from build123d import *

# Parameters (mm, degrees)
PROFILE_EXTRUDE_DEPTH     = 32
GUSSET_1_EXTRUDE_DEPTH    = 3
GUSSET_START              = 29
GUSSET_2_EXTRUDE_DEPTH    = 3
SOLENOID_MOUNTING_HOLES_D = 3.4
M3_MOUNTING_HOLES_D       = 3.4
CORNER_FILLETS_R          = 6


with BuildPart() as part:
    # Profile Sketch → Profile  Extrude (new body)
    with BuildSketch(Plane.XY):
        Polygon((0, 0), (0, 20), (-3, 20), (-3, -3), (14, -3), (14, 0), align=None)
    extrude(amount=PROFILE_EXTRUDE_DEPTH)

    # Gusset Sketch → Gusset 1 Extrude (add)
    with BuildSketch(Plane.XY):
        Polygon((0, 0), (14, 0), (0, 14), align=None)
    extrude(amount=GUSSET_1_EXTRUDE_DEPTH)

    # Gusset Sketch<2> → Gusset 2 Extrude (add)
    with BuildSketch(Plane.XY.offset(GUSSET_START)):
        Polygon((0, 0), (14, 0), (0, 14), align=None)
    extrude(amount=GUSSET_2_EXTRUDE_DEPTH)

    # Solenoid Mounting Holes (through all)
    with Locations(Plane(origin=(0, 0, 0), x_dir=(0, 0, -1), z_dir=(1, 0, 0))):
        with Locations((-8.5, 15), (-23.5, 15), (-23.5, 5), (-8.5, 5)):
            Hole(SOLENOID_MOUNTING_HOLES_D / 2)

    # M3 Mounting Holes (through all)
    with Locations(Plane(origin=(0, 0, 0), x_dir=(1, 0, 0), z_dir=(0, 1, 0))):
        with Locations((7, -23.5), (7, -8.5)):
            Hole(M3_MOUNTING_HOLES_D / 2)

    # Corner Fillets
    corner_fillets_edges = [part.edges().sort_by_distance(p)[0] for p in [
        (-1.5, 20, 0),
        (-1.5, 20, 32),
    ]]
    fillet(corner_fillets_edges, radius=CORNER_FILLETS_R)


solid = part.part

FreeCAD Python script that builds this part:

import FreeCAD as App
import Part
import Sketcher
Q = App.Units.Quantity


def edges_at(feature, points):
    """Names of the edges that pass closest to the given points."""
    edges = feature.Shape.Edges
    near = lambda p: min(range(len(edges)), key=lambda i: edges[i].distToShape(Part.Vertex(*p))[0])
    return sorted({f"Edge{near(p) + 1}" for p in points})


def add_polygon(sketch, points):
    """Adds a closed chain of lines whose ends are joined by coincident constraints."""
    first, n = sketch.GeometryCount, len(points)
    for a, b in zip(points, points[1:] + points[:1]):
        sketch.addGeometry(Part.LineSegment(App.Vector(*a, 0), App.Vector(*b, 0)), False)
    for i in range(n):
        sketch.addConstraint(Sketcher.Constraint("Coincident", first + i, 2, first + (i + 1) % n, 1))

doc = App.newDocument("Part")
params = doc.addObject("Spreadsheet::Sheet", "Params")
for row, (alias, value) in enumerate([
    ("sketch1_width", "3 mm"),
    ("sketch1_width2", "17 mm"),
    ("sketch1_height", "20 mm"),
    ("pad1_length", "32 mm"),
    ("sketch2_width", "14 mm"),
    ("pad2_length", "3 mm"),
    ("sketch3_width", "14 mm"),
    ("pad3_length", "3 mm"),
    ("sketch4_diameter", "3.4 mm"),
    ("hole_diameter", "3.4 mm"),
    ("sketch5_diameter", "3.4 mm"),
    ("hole2_diameter", "3.4 mm"),
    ("fillet_radius", "6 mm"),
], start=1):
    params.set(f"A{row}", alias)
    params.set(f"B{row}", "=" + value)
    params.setAlias(f"B{row}", alias)

body = doc.addObject("PartDesign::Body", "Body")

sketch1 = doc.addObject("Sketcher::SketchObject", "Sketch")
body.addObject(sketch1)
sketch1.AttachmentSupport = (doc.XY_Plane, [""])
sketch1.MapMode = "FlatFace"
add_polygon(sketch1, [(0, 0), (0, 20), (-3, 20), (-3, -3), (14, -3), (14, 0)])
sketch1.addConstraint([
    Sketcher.Constraint("Vertical", 0),
    Sketcher.Constraint("Horizontal", 1),
    Sketcher.Constraint("Vertical", 2),
    Sketcher.Constraint("Horizontal", 3),
    Sketcher.Constraint("Vertical", 4),
    Sketcher.Constraint("Horizontal", 5),
    Sketcher.Constraint("Coincident", 5, 2, -1, 1),
    Sketcher.Constraint("Equal", 1, 4),
    Sketcher.Constraint("DistanceX", 1, 2, 1, 1, Q("3 mm")),
    Sketcher.Constraint("DistanceX", 3, 1, 3, 2, Q("17 mm")),
    Sketcher.Constraint("DistanceY", 0, 1, 0, 2, Q("20 mm")),
])
sketch1.setExpression("Constraints[14]", "Params.sketch1_width")
sketch1.setExpression("Constraints[15]", "Params.sketch1_width2")
sketch1.setExpression("Constraints[16]", "Params.sketch1_height")
pad1 = doc.addObject("PartDesign::Pad", "Pad")
body.addObject(pad1)
pad1.Profile = sketch1
pad1.setExpression("Length", "Params.pad1_length")

sketch2 = doc.addObject("Sketcher::SketchObject", "Sketch001")
body.addObject(sketch2)
sketch2.AttachmentSupport = (doc.XY_Plane, [""])
sketch2.MapMode = "FlatFace"
add_polygon(sketch2, [(0, 0), (14, 0), (0, 14)])
sketch2.addConstraint([
    Sketcher.Constraint("Horizontal", 0),
    Sketcher.Constraint("Vertical", 2),
    Sketcher.Constraint("Coincident", 2, 2, -1, 1),
    Sketcher.Constraint("Equal", 0, 2),
    Sketcher.Constraint("DistanceX", 0, 1, 0, 2, Q("14 mm")),
])
sketch2.setExpression("Constraints[7]", "Params.sketch2_width")
pad2 = doc.addObject("PartDesign::Pad", "Pad001")
body.addObject(pad2)
pad2.Profile = sketch2
pad2.setExpression("Length", "Params.pad2_length")

sketch3 = doc.addObject("Sketcher::SketchObject", "Sketch002")
body.addObject(sketch3)
sketch3.AttachmentSupport = (doc.XY_Plane, [""])
sketch3.MapMode = "FlatFace"
sketch3.AttachmentOffset = App.Placement(App.Vector(0, 0, 29), App.Rotation())
add_polygon(sketch3, [(0, 0), (14, 0), (0, 14)])
sketch3.addConstraint([
    Sketcher.Constraint("Horizontal", 0),
    Sketcher.Constraint("Vertical", 2),
    Sketcher.Constraint("Coincident", 2, 2, -1, 1),
    Sketcher.Constraint("Equal", 0, 2),
    Sketcher.Constraint("DistanceX", 0, 1, 0, 2, Q("14 mm")),
])
sketch3.setExpression("Constraints[7]", "Params.sketch3_width")
pad3 = doc.addObject("PartDesign::Pad", "Pad002")
body.addObject(pad3)
pad3.Profile = sketch3
pad3.setExpression("Length", "Params.pad3_length")

sketch4 = doc.addObject("Sketcher::SketchObject", "Sketch003")
body.addObject(sketch4)
sketch4.AttachmentSupport = (doc.YZ_Plane, [""])
sketch4.MapMode = "FlatFace"
sketch4.addGeometry([
    Part.Circle(App.Vector(15, 8.5, 0), App.Vector(0, 0, 1), 1.7),
    Part.Circle(App.Vector(15, 23.5, 0), App.Vector(0, 0, 1), 1.7),
    Part.Circle(App.Vector(5, 23.5, 0), App.Vector(0, 0, 1), 1.7),
    Part.Circle(App.Vector(5, 8.5, 0), App.Vector(0, 0, 1), 1.7),
], False)
sketch4.addConstraint([
    Sketcher.Constraint("Equal", 0, 1),
    Sketcher.Constraint("Equal", 1, 2),
    Sketcher.Constraint("Equal", 2, 3),
    Sketcher.Constraint("Horizontal", 1, 3, 2, 3),
    Sketcher.Constraint("Horizontal", 0, 3, 3, 3),
    Sketcher.Constraint("Vertical", 0, 3, 1, 3),
    Sketcher.Constraint("Vertical", 2, 3, 3, 3),
    Sketcher.Constraint("Diameter", 0, Q("3.4 mm")),
    Sketcher.Constraint("DistanceX", -1, 1, 0, 3, Q("15 mm")),
    Sketcher.Constraint("DistanceX", -1, 1, 2, 3, Q("5 mm")),
    Sketcher.Constraint("DistanceY", 0, 3, 1, 3, Q("15 mm")),
    Sketcher.Constraint("DistanceY", -1, 1, 0, 3, Q("8.5 mm")),
])
sketch4.setExpression("Constraints[7]", "Params.sketch4_diameter")
doc.recompute()
hole = doc.addObject("PartDesign::Hole", "Hole")
body.addObject(hole)
hole.Profile = sketch4
hole.ThreadType = "None"
hole.setExpression("Diameter", "Params.hole_diameter")
hole.DepthType = "ThroughAll"

sketch5 = doc.addObject("Sketcher::SketchObject", "Sketch004")
body.addObject(sketch5)
sketch5.AttachmentSupport = (doc.XZ_Plane, [""])
sketch5.MapMode = "FlatFace"
sketch5.addGeometry([
    Part.Circle(App.Vector(7, 23.5, 0), App.Vector(0, 0, 1), 1.7),
    Part.Circle(App.Vector(7, 8.5, 0), App.Vector(0, 0, 1), 1.7),
], False)
sketch5.addConstraint([
    Sketcher.Constraint("Equal", 0, 1),
    Sketcher.Constraint("Vertical", 0, 3, 1, 3),
    Sketcher.Constraint("Diameter", 0, Q("3.4 mm")),
    Sketcher.Constraint("DistanceX", -1, 1, 0, 3, Q("7 mm")),
    Sketcher.Constraint("DistanceY", 1, 3, 0, 3, Q("15 mm")),
    Sketcher.Constraint("DistanceY", -1, 1, 0, 3, Q("23.5 mm")),
])
sketch5.setExpression("Constraints[2]", "Params.sketch5_diameter")
doc.recompute()
hole2 = doc.addObject("PartDesign::Hole", "Hole001")
body.addObject(hole2)
hole2.Profile = sketch5
hole2.ThreadType = "None"
hole2.setExpression("Diameter", "Params.hole2_diameter")
hole2.DepthType = "ThroughAll"
hole2.Reversed = True
doc.recompute()

fillet = doc.addObject("PartDesign::Fillet", "Fillet")
body.addObject(fillet)
fillet.Base = (hole2, edges_at(hole2, [(-1.5, 20, 0), (-1.5, 20, 32)]))
fillet.setExpression("Radius", "Params.fillet_radius")

doc.recompute()
